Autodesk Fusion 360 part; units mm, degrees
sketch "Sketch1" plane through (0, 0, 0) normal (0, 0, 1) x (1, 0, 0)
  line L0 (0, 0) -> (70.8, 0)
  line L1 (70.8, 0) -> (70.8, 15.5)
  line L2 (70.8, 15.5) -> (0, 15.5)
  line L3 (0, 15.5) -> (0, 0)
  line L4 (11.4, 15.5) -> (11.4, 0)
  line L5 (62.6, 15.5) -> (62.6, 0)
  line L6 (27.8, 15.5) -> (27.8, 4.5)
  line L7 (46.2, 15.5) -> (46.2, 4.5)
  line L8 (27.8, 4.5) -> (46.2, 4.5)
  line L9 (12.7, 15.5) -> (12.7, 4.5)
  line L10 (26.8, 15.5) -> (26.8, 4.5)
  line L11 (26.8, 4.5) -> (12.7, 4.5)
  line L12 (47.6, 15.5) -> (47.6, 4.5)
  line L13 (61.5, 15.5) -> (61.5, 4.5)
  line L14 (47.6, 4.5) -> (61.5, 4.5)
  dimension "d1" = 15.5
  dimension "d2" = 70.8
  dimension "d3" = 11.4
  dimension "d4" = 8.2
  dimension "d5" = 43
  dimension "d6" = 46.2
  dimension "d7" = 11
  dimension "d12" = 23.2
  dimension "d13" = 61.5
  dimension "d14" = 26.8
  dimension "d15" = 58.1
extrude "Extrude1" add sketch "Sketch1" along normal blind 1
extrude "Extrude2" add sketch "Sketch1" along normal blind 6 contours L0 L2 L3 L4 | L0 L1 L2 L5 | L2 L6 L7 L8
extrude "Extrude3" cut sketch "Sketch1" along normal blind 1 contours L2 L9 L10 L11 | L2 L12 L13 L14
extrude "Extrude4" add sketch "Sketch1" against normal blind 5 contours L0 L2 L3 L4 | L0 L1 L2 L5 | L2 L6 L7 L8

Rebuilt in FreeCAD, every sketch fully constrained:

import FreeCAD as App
import Part
import Sketcher

V = App.Vector


def add_polygon(sketch, points):
    """Adds a closed chain of lines whose ends are joined by coincident constraints."""
    first, n = sketch.GeometryCount, len(points)
    for a, b in zip(points, points[1:] + points[:1]):
        sketch.addGeometry(Part.LineSegment(App.Vector(*a, 0), App.Vector(*b, 0)), False)
    for i in range(n):
        sketch.addConstraint(Sketcher.Constraint("Coincident", first + i, 2, first + (i + 1) % n, 1))

doc = App.newDocument("Part")
body = doc.addObject("PartDesign::Body", "Body")

# Sketch on XY plane
sketch1 = doc.addObject("Sketcher::SketchObject", "Sketch")
body.addObject(sketch1)
sketch1.AttachmentSupport = (doc.XY_Plane, [""])
sketch1.MapMode = "FlatFace"
add_polygon(sketch1, [(0, 15.5), (0, 0), (70.8, 0), (70.8, 15.5)])  # lines 0-3
sketch1.addConstraint(Sketcher.Constraint("Vertical", 0))
sketch1.addConstraint(Sketcher.Constraint("Horizontal", 1))
sketch1.addConstraint(Sketcher.Constraint("Vertical", 2))
sketch1.addConstraint(Sketcher.Constraint("Horizontal", 3))
sketch1.addConstraint(Sketcher.Constraint("Coincident", 0, 2, -1, 1))
sketch1.addConstraint(Sketcher.Constraint("DistanceX", 1, 1, 1, 2, 70.8))
sketch1.addConstraint(Sketcher.Constraint("DistanceY", 0, 2, 0, 1, 15.5))
pad1 = doc.addObject("PartDesign::Pad", "Pad")
body.addObject(pad1)
pad1.Profile = sketch1
pad1.Length = 1

# Sketch on XY plane
sketch2 = doc.addObject("Sketcher::SketchObject", "Sketch001")
body.addObject(sketch2)
sketch2.AttachmentSupport = (doc.XY_Plane, [""])
sketch2.MapMode = "FlatFace"
add_polygon(sketch2, [(0, 15.5), (0, 0), (11.4, 0), (11.4, 15.5)])  # lines 0-3
add_polygon(sketch2, [(62.6, 15.5), (62.6, 0), (70.8, 0), (70.8, 15.5)])  # lines 4-7
add_polygon(sketch2, [(46.2, 15.5), (27.8, 15.5), (27.8, 4.5), (46.2, 4.5)])  # lines 8-11
sketch2.addConstraint(Sketcher.Constraint("Vertical", 0))
sketch2.addConstraint(Sketcher.Constraint("Horizontal", 1))
sketch2.addConstraint(Sketcher.Constraint("Vertical", 2))
sketch2.addConstraint(Sketcher.Constraint("Horizontal", 3))
sketch2.addConstraint(Sketcher.Constraint("Vertical", 4))
sketch2.addConstraint(Sketcher.Constraint("Horizontal", 5))
sketch2.addConstraint(Sketcher.Constraint("Vertical", 6))
sketch2.addConstraint(Sketcher.Constraint("Horizontal", 7))
sketch2.addConstraint(Sketcher.Constraint("Horizontal", 8))
sketch2.addConstraint(Sketcher.Constraint("Vertical", 9))
sketch2.addConstraint(Sketcher.Constraint("Horizontal", 10))
sketch2.addConstraint(Sketcher.Constraint("Vertical", 11))
sketch2.addConstraint(Sketcher.Constraint("Coincident", 0, 2, -1, 1))
sketch2.addConstraint(Sketcher.Constraint("PointOnObject", 4, 2, -1))
sketch2.addConstraint(Sketcher.Constraint("Horizontal", 3, 2, 6, 2))
sketch2.addConstraint(Sketcher.Constraint("Horizontal", 7, 2, 8, 2))
sketch2.addConstraint(Sketcher.Constraint("DistanceY", 9, 2, 9, 1, 11.0))
sketch2.addConstraint(Sketcher.Constraint("DistanceX", 1, 1, 1, 2, 11.4))
sketch2.addConstraint(Sketcher.Constraint("DistanceX", 5, 1, 5, 2, 8.2))
sketch2.addConstraint(Sketcher.Constraint("DistanceY", 0, 2, 0, 1, 15.5))
sketch2.addConstraint(Sketcher.Constraint("DistanceX", -1, 1, 5, 2, 70.8))
sketch2.addConstraint(Sketcher.Constraint("DistanceX", -1, 1, 10, 2, 46.2))
sketch2.addConstraint(Sketcher.Constraint("DistanceX", 8, 2, 8, 1, 18.4))
pad2 = doc.addObject("PartDesign::Pad", "Pad001")
body.addObject(pad2)
pad2.Profile = sketch2
pad2.Length = 6

# Sketch on XY plane
sketch3 = doc.addObject("Sketcher::SketchObject", "Sketch002")
body.addObject(sketch3)
sketch3.AttachmentSupport = (doc.XY_Plane, [""])
sketch3.MapMode = "FlatFace"
add_polygon(sketch3, [(26.8, 15.5), (12.7, 15.5), (12.7, 4.5), (26.8, 4.5)])  # lines 0-3
add_polygon(sketch3, [(61.5, 4.5), (61.5, 15.5), (47.6, 15.5), (47.6, 4.5)])  # lines 4-7
sketch3.addConstraint(Sketcher.Constraint("Horizontal", 0))
sketch3.addConstraint(Sketcher.Constraint("Vertical", 1))
sketch3.addConstraint(Sketcher.Constraint("Horizontal", 2))
sketch3.addConstraint(Sketcher.Constraint("Vertical", 3))
sketch3.addConstraint(Sketcher.Constraint("Vertical", 4))
sketch3.addConstraint(Sketcher.Constraint("Horizontal", 5))
sketch3.addConstraint(Sketcher.Constraint("Vertical", 6))
sketch3.addConstraint(Sketcher.Constraint("Horizontal", 7))
sketch3.addConstraint(Sketcher.Constraint("Horizontal", 3, 2, 4, 2))
sketch3.addConstraint(Sketcher.Constraint("Horizontal", 2, 2, 6, 2))
sketch3.addConstraint(Sketcher.Constraint("DistanceY", 1, 2, 1, 1, 11.0))
sketch3.addConstraint(Sketcher.Constraint("DistanceY", -1, 1, 0, 2, 15.5))
sketch3.addConstraint(Sketcher.Constraint("DistanceX", -1, 1, 2, 2, 26.8))
sketch3.addConstraint(Sketcher.Constraint("DistanceX", -1, 1, 4, 2, 61.5))
sketch3.addConstraint(Sketcher.Constraint("DistanceX", 0, 2, 0, 1, 14.1))
sketch3.addConstraint(Sketcher.Constraint("DistanceX", 5, 2, 5, 1, 13.9))
pocket1 = doc.addObject("PartDesign::Pocket", "Pocket")
body.addObject(pocket1)
pocket1.Profile = sketch3
pocket1.Length = 1
pocket1.Reversed = True

# Sketch on XY plane
sketch4 = doc.addObject("Sketcher::SketchObject", "Sketch003")
body.addObject(sketch4)
sketch4.AttachmentSupport = (doc.XY_Plane, [""])
sketch4.MapMode = "FlatFace"
add_polygon(sketch4, [(0, 15.5), (0, 0), (11.4, 0), (11.4, 15.5)])  # lines 0-3
add_polygon(sketch4, [(62.6, 15.5), (62.6, 0), (70.8, 0), (70.8, 15.5)])  # lines 4-7
add_polygon(sketch4, [(46.2, 15.5), (27.8, 15.5), (27.8, 4.5), (46.2, 4.5)])  # lines 8-11
sketch4.addConstraint(Sketcher.Constraint("Vertical", 0))
sketch4.addConstraint(Sketcher.Constraint("Horizontal", 1))
sketch4.addConstraint(Sketcher.Constraint("Vertical", 2))
sketch4.addConstraint(Sketcher.Constraint("Horizontal", 3))
sketch4.addConstraint(Sketcher.Constraint("Vertical", 4))
sketch4.addConstraint(Sketcher.Constraint("Horizontal", 5))
sketch4.addConstraint(Sketcher.Constraint("Vertical", 6))
sketch4.addConstraint(Sketcher.Constraint("Horizontal", 7))
sketch4.addConstraint(Sketcher.Constraint("Horizontal", 8))
sketch4.addConstraint(Sketcher.Constraint("Vertical", 9))
sketch4.addConstraint(Sketcher.Constraint("Horizontal", 10))
sketch4.addConstraint(Sketcher.Constraint("Vertical", 11))
sketch4.addConstraint(Sketcher.Constraint("Coincident", 0, 2, -1, 1))
sketch4.addConstraint(Sketcher.Constraint("PointOnObject", 4, 2, -1))
sketch4.addConstraint(Sketcher.Constraint("Horizontal", 3, 2, 6, 2))
sketch4.addConstraint(Sketcher.Constraint("Horizontal", 7, 2, 8, 2))
sketch4.addConstraint(Sketcher.Constraint("DistanceY", 9, 2, 9, 1, 11.0))
sketch4.addConstraint(Sketcher.Constraint("DistanceX", 1, 1, 1, 2, 11.4))
sketch4.addConstraint(Sketcher.Constraint("DistanceX", 5, 1, 5, 2, 8.2))
sketch4.addConstraint(Sketcher.Constraint("DistanceY", 0, 2, 0, 1, 15.5))
sketch4.addConstraint(Sketcher.Constraint("DistanceX", -1, 1, 5, 2, 70.8))
sketch4.addConstraint(Sketcher.Constraint("DistanceX", -1, 1, 10, 2, 46.2))
sketch4.addConstraint(Sketcher.Constraint("DistanceX", 8, 2, 8, 1, 18.4))
pad3 = doc.addObject("PartDesign::Pad", "Pad002")
body.addObject(pad3)
pad3.Profile = sketch4
pad3.Length = 5
pad3.Reversed = True

doc.recompute()
